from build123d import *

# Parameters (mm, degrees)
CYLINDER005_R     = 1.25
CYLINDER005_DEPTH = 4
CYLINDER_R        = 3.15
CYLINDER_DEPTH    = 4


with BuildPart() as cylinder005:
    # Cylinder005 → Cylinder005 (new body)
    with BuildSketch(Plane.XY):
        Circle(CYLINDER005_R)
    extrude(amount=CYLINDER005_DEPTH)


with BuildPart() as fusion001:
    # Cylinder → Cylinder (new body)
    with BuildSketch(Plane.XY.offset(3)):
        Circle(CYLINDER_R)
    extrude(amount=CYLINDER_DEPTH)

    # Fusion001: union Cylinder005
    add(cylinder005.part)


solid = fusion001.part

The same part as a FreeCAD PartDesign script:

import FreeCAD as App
import Part
import Sketcher
from FreeCAD import Vector
Q = App.Units.Quantity

doc = App.newDocument("Part")
body = doc.addObject("PartDesign::Body", "Body")

# Sketch on XY plane
sketch1 = doc.addObject("Sketcher::SketchObject", "Sketch")
body.addObject(sketch1)
sketch1.AttachmentSupport = (doc.XY_Plane, [""])
sketch1.MapMode = "FlatFace"
sketch1.addGeometry(Part.Circle(Vector(0, 0, 0), Vector(0, 0, 1), 1.25), False)
sketch1.addConstraint(Sketcher.Constraint("Coincident", 0, 3, -1, 1))
sketch1.addConstraint(Sketcher.Constraint("Diameter", 0, Q("2.5 mm")))
pad1 = doc.addObject("PartDesign::Pad", "Pad")
body.addObject(pad1)
pad1.Profile = sketch1
pad1.Length = 4
body2 = doc.addObject("PartDesign::Body", "Body001")

# Sketch on XY plane
sketch2 = doc.addObject("Sketcher::SketchObject", "Sketch001")
body2.addObject(sketch2)
sketch2.AttachmentSupport = (doc.getObject("XY_Plane001"), [""])
sketch2.MapMode = "FlatFace"
sketch2.AttachmentOffset = App.Placement(Vector(0, 0, 3), App.Rotation())
sketch2.addGeometry(Part.Circle(Vector(0, 0, 0), Vector(0, 0, 1), 3.15), False)
sketch2.addConstraint(Sketcher.Constraint("Coincident", 0, 3, -1, 1))
sketch2.addConstraint(Sketcher.Constraint("Diameter", 0, Q("6.3 mm")))
pad2 = doc.addObject("PartDesign::Pad", "Pad001")
body2.addObject(pad2)
pad2.Profile = sketch2
pad2.Length = 4
doc.recompute()

boolean = doc.addObject("PartDesign::Boolean", "Boolean")
body2.addObject(boolean)
boolean.Type = "Fuse"
boolean.addObjects([body])

doc.recompute()
